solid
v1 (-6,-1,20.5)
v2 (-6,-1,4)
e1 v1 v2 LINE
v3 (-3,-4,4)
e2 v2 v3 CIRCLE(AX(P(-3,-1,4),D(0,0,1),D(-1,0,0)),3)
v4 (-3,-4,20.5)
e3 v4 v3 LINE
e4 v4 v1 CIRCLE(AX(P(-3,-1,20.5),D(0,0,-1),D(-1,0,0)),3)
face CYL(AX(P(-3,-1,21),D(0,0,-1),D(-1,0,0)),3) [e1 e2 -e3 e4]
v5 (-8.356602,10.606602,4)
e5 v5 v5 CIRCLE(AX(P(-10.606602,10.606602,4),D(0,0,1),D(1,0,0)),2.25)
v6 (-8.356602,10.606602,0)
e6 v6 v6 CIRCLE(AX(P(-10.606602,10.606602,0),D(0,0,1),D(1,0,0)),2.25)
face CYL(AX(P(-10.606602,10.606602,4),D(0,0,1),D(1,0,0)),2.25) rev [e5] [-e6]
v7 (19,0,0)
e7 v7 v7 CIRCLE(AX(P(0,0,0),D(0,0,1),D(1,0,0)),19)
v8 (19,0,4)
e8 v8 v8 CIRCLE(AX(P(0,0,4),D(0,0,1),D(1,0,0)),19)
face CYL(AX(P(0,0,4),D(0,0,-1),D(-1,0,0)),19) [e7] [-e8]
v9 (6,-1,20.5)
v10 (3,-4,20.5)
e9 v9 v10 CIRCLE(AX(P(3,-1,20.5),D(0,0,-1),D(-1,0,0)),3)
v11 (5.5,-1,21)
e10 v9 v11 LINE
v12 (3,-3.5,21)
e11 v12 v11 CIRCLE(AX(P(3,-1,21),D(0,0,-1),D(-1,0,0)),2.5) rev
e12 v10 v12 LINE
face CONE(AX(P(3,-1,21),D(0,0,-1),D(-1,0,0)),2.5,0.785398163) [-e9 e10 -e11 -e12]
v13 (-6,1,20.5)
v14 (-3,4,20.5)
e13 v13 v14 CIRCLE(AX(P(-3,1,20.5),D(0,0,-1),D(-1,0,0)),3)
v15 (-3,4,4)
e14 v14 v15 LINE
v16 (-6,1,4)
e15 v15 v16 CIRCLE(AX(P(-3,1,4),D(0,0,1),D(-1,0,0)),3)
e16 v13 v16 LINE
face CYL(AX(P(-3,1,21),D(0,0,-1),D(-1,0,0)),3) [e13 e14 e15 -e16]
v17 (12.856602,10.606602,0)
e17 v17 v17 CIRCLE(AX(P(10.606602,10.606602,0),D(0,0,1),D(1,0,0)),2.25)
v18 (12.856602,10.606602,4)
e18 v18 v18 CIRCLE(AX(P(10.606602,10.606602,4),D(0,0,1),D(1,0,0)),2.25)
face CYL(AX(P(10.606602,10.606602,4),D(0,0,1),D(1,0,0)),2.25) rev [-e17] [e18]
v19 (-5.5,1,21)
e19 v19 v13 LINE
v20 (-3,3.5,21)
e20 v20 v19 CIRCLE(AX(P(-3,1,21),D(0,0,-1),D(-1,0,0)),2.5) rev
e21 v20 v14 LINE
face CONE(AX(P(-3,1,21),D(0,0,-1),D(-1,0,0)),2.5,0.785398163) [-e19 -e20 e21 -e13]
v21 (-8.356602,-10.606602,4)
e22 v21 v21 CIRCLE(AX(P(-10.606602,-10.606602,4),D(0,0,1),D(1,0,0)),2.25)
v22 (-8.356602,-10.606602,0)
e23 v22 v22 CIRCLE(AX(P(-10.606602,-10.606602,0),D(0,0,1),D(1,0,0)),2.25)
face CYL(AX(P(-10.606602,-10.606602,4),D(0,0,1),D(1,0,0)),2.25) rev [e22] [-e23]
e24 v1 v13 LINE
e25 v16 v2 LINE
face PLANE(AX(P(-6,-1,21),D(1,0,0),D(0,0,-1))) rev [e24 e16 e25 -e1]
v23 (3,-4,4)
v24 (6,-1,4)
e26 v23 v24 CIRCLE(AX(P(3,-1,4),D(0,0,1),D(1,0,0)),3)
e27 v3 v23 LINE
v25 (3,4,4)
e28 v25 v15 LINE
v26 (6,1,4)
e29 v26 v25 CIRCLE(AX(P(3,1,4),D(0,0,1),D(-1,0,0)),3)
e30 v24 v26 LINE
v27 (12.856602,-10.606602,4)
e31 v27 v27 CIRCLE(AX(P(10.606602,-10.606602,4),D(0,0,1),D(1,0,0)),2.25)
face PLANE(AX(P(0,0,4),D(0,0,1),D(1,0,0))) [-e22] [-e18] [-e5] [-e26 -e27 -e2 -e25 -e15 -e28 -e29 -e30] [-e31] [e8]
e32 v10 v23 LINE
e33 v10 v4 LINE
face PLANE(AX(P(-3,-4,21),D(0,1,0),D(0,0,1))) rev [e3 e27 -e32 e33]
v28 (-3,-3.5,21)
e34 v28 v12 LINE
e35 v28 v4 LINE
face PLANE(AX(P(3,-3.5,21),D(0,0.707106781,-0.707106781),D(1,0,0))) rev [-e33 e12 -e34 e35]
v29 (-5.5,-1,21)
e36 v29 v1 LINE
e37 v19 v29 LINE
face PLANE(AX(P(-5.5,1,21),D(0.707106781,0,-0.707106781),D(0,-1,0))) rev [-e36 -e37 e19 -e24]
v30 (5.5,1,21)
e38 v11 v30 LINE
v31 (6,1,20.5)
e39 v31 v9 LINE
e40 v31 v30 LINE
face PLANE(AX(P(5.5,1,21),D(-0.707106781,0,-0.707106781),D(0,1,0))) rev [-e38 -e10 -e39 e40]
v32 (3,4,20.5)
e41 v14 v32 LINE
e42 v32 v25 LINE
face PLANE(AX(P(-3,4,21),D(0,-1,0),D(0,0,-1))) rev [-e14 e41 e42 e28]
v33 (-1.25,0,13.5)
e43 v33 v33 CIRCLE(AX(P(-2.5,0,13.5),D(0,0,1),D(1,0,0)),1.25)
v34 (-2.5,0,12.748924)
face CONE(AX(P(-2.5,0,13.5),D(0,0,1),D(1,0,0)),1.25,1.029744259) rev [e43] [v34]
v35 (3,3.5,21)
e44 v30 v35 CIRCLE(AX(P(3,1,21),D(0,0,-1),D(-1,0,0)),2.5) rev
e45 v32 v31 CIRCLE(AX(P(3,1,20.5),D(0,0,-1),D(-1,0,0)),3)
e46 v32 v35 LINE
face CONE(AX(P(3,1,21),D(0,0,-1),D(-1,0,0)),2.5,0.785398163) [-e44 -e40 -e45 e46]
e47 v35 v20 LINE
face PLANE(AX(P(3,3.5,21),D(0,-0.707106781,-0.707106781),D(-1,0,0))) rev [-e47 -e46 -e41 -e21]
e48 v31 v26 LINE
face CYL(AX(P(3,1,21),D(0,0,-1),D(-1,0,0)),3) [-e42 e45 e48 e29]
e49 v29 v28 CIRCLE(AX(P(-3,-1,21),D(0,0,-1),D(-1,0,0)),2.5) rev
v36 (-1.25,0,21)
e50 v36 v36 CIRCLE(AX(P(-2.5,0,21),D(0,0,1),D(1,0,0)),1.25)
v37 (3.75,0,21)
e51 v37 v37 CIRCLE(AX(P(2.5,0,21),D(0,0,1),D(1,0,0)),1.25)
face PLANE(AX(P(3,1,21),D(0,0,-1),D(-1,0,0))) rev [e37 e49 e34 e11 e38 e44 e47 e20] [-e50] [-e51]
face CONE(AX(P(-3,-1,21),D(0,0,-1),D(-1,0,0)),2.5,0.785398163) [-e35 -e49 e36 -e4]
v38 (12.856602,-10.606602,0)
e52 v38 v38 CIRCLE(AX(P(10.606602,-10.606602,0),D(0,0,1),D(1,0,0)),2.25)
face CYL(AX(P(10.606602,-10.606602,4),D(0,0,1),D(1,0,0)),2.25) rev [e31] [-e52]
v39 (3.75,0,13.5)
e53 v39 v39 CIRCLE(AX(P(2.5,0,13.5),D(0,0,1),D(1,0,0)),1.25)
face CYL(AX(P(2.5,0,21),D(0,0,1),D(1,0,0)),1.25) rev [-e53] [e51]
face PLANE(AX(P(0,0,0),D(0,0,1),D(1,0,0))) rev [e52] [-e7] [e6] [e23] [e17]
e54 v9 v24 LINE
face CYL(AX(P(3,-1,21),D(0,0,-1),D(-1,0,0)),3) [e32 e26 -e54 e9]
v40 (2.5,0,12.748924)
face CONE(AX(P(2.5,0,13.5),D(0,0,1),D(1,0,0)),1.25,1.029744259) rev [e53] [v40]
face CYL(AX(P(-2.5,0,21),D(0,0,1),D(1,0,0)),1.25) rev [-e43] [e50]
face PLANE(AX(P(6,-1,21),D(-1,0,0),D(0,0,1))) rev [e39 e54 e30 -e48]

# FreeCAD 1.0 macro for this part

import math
import FreeCAD as App
import Part
import Sketcher


def edges_at(feature, points):
    """Names of the edges that pass closest to the given points."""
    edges = feature.Shape.Edges
    near = lambda p: min(range(len(edges)), key=lambda i: edges[i].distToShape(Part.Vertex(*p))[0])
    return sorted({f"Edge{near(p) + 1}" for p in points})

doc = App.newDocument("Part")
body = doc.addObject("PartDesign::Body", "Body")

sketch1 = body.newObject("Sketcher::SketchObject", "Sketch")
sketch1.AttachmentSupport = (doc.getObject("XY_Plane"), [""])
sketch1.MapMode = "FlatFace"
sketch1.addGeometry(Part.Circle(App.Vector(0, 0, 0), App.Vector(0, 0, 1), 19), False)
sketch1.addConstraint([
    Sketcher.Constraint("Coincident", 0, 3, -1, 1),
    Sketcher.Constraint("Diameter", 0, 38.0),
])
pad1 = body.newObject("PartDesign::Pad", "Pad")
pad1.Profile = sketch1
pad1.Length = 4

sketch2 = body.newObject("Sketcher::SketchObject", "Sketch001")
sketch2.AttachmentSupport = (doc.getObject("XY_Plane"), [""])
sketch2.MapMode = "FlatFace"
sketch2.AttachmentOffset = App.Placement(App.Vector(0, 0, 4), App.Rotation())
sketch2.addGeometry([
    Part.Circle(App.Vector(10.6, 10.6, 0), App.Vector(0, 0, 1), 2.2),
    Part.Circle(App.Vector(-10.6, -10.6, 0), App.Vector(0, 0, 1), 2.2),
    Part.Circle(App.Vector(-10.6, 10.6, 0), App.Vector(0, 0, 1), 2.2),
    Part.Circle(App.Vector(10.6, -10.6, 0), App.Vector(0, 0, 1), 2.2),
], False)
sketch2.addConstraint([
    Sketcher.Constraint("Equal", 0, 1),
    Sketcher.Constraint("Equal", 1, 2),
    Sketcher.Constraint("Equal", 2, 3),
    Sketcher.Constraint("Symmetric", 0, 3, 1, 3, -1, 1),
    Sketcher.Constraint("Symmetric", 2, 3, 3, 3, -1, 1),
    Sketcher.Constraint("Symmetric", 0, 3, 2, 3, -2),
    Sketcher.Constraint("Diameter", 0, 4.5),
    Sketcher.Constraint("DistanceX", -1, 1, 0, 3, 10.606602),
    Sketcher.Constraint("DistanceY", -1, 1, 0, 3, 10.606602),
])
doc.recompute()
hole = body.newObject("PartDesign::Hole", "Hole")
hole.Profile = sketch2
hole.ThreadType = "None"
hole.Diameter = 4.5
hole.DepthType = "ThroughAll"

sketch3 = body.newObject("Sketcher::SketchObject", "Sketch002")
sketch3.AttachmentSupport = (doc.getObject("XY_Plane"), [""])
sketch3.MapMode = "FlatFace"
sketch3.AttachmentOffset = App.Placement(App.Vector(0, 0, 4), App.Rotation())
sketch3.addGeometry([
    Part.LineSegment(App.Vector(-3, -4, 0), App.Vector(3, -4, 0)),
    Part.ArcOfCircle(Part.Circle(App.Vector(3, -1, 0), App.Vector(0, 0, 1), 3), math.radians(-90), math.radians(0)),
    Part.LineSegment(App.Vector(6, -1, 0), App.Vector(6, 1, 0)),
    Part.ArcOfCircle(Part.Circle(App.Vector(3, 1, 0), App.Vector(0, 0, 1), 3), math.radians(0), math.radians(90)),
    Part.LineSegment(App.Vector(3, 4, 0), App.Vector(-3, 4, 0)),
    Part.ArcOfCircle(Part.Circle(App.Vector(-3, 1, 0), App.Vector(0, 0, 1), 3), math.radians(90), math.radians(180)),
    Part.LineSegment(App.Vector(-6, 1, 0), App.Vector(-6, -1, 0)),
    Part.ArcOfCircle(Part.Circle(App.Vector(-3, -1, 0), App.Vector(0, 0, 1), 3), math.radians(180), math.radians(270)),
], False)
sketch3.addConstraint([
    Sketcher.Constraint("Tangent", 0, 2, 1, 1),
    Sketcher.Constraint("Tangent", 1, 2, 2, 1),
    Sketcher.Constraint("Tangent", 2, 2, 3, 1),
    Sketcher.Constraint("Tangent", 3, 2, 4, 1),
    Sketcher.Constraint("Tangent", 4, 2, 5, 1),
    Sketcher.Constraint("Tangent", 5, 2, 6, 1),
    Sketcher.Constraint("Tangent", 6, 2, 7, 1),
    Sketcher.Constraint("Tangent", 7, 2, 0, 1),
    Sketcher.Constraint("Horizontal", 0),
    Sketcher.Constraint("Vertical", 2),
    Sketcher.Constraint("Horizontal", 4),
    Sketcher.Constraint("Vertical", 6),
    Sketcher.Constraint("Equal", 1, 3),
    Sketcher.Constraint("Equal", 3, 5),
    Sketcher.Constraint("Equal", 5, 7),
    Sketcher.Constraint("Symmetric", 1, 3, 5, 3, -1, 1),
    Sketcher.Constraint("Radius", 1, 3.0),
    Sketcher.Constraint("DistanceX", 0, 1, 0, 2, 6.0),
    Sketcher.Constraint("DistanceY", 2, 1, 2, 2, 2.0),
])
pad2 = body.newObject("PartDesign::Pad", "Pad001")
pad2.Profile = sketch3
pad2.Length = 17
doc.recompute()

chamfer = body.newObject("PartDesign::Chamfer", "Chamfer")
chamfer.Base = (pad2, edges_at(pad2, [
    (5.121, 3.121, 21),
    (0, 4, 21),
    (-5.121, 3.121, 21),
    (-6, 0, 21),
    (-5.121, -3.121, 21),
    (0, -4, 21),
    (5.121, -3.121, 21),
    (6, 0, 21),
]))
chamfer.Size = 0.5

sketch4 = body.newObject("Sketcher::SketchObject", "Sketch003")
sketch4.AttachmentSupport = (doc.getObject("XY_Plane"), [""])
sketch4.MapMode = "FlatFace"
sketch4.AttachmentOffset = App.Placement(App.Vector(0, 0, 21), App.Rotation())
sketch4.addGeometry([
    Part.Circle(App.Vector(-2.5, 0, 0), App.Vector(0, 0, 1), 1.2),
    Part.Circle(App.Vector(2.5, 0, 0), App.Vector(0, 0, 1), 1.2),
], False)
sketch4.addConstraint([
    Sketcher.Constraint("Equal", 0, 1),
    Sketcher.Constraint("Symmetric", 0, 3, 1, 3, -1, 1),
    Sketcher.Constraint("PointOnObject", 0, 3, -1),
    Sketcher.Constraint("Diameter", 0, 2.5),
    Sketcher.Constraint("DistanceX", 0, 3, 1, 3, 5.0),
])
doc.recompute()
hole2 = body.newObject("PartDesign::Hole", "Hole001")
hole2.Profile = sketch4
hole2.ThreadType = "None"
hole2.Diameter = 2.5
hole2.DepthType = "Dimension"
hole2.Depth = 7.5
hole2.DrillPoint = "Angled"
hole2.DrillPointAngle = 118

doc.recompute()
